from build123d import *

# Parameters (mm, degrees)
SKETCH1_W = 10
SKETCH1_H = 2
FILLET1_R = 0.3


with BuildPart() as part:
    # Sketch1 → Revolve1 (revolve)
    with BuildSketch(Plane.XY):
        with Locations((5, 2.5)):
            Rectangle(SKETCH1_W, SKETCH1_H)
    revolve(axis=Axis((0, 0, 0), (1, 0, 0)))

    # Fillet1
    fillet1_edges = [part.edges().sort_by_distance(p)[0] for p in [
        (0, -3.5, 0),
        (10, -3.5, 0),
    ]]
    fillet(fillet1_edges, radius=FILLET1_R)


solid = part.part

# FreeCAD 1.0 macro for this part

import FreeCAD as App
import Part
import Sketcher

V = App.Vector
Q = App.Units.Quantity


def edges_at(feature, points):
    """Names of the edges that pass closest to the given points."""
    edges = feature.Shape.Edges
    near = lambda p: min(range(len(edges)), key=lambda i: edges[i].distToShape(Part.Vertex(*p))[0])
    return sorted({f"Edge{near(p) + 1}" for p in points})


def add_polygon(sketch, points):
    """Adds a closed chain of lines whose ends are joined by coincident constraints."""
    first, n = sketch.GeometryCount, len(points)
    for a, b in zip(points, points[1:] + points[:1]):
        sketch.addGeometry(Part.LineSegment(App.Vector(*a, 0), App.Vector(*b, 0)), False)
    for i in range(n):
        sketch.addConstraint(Sketcher.Constraint("Coincident", first + i, 2, first + (i + 1) % n, 1))

doc = App.newDocument("Part")
body = doc.addObject("PartDesign::Body", "Body")

# Sketch on XY plane
sketch1 = body.newObject("Sketcher::SketchObject", "Sketch")
sketch1.AttachmentSupport = (doc.getObject("XY_Plane"), [""])
sketch1.MapMode = "FlatFace"
add_polygon(sketch1, [(0, 3.5), (0, 1.5), (10, 1.5), (10, 3.5)])  # lines 0-3
sketch1.addConstraint(Sketcher.Constraint("Vertical", 0))
sketch1.addConstraint(Sketcher.Constraint("Horizontal", 1))
sketch1.addConstraint(Sketcher.Constraint("Vertical", 2))
sketch1.addConstraint(Sketcher.Constraint("Horizontal", 3))
sketch1.addConstraint(Sketcher.Constraint("PointOnObject", 0, 2, -2))
sketch1.addConstraint(Sketcher.Constraint("DistanceX", 1, 1, 1, 2, Q("10 mm")))
sketch1.addConstraint(Sketcher.Constraint("DistanceY", 0, 2, 0, 1, Q("2 mm")))
sketch1.addConstraint(Sketcher.Constraint("DistanceY", -1, 1, 0, 2, Q("1.5 mm")))
revolution = body.newObject("PartDesign::Revolution", "Revolution")
revolution.Profile = sketch1
revolution.ReferenceAxis = (sketch1, ["H_Axis"])
revolution.Angle = 360
doc.recompute()

fillet = body.newObject("PartDesign::Fillet", "Fillet")
fillet.Base = (revolution, edges_at(revolution, [(0, -3.5, 0), (10, -3.5, 0)]))
fillet.Radius = 0.3

doc.recompute()
